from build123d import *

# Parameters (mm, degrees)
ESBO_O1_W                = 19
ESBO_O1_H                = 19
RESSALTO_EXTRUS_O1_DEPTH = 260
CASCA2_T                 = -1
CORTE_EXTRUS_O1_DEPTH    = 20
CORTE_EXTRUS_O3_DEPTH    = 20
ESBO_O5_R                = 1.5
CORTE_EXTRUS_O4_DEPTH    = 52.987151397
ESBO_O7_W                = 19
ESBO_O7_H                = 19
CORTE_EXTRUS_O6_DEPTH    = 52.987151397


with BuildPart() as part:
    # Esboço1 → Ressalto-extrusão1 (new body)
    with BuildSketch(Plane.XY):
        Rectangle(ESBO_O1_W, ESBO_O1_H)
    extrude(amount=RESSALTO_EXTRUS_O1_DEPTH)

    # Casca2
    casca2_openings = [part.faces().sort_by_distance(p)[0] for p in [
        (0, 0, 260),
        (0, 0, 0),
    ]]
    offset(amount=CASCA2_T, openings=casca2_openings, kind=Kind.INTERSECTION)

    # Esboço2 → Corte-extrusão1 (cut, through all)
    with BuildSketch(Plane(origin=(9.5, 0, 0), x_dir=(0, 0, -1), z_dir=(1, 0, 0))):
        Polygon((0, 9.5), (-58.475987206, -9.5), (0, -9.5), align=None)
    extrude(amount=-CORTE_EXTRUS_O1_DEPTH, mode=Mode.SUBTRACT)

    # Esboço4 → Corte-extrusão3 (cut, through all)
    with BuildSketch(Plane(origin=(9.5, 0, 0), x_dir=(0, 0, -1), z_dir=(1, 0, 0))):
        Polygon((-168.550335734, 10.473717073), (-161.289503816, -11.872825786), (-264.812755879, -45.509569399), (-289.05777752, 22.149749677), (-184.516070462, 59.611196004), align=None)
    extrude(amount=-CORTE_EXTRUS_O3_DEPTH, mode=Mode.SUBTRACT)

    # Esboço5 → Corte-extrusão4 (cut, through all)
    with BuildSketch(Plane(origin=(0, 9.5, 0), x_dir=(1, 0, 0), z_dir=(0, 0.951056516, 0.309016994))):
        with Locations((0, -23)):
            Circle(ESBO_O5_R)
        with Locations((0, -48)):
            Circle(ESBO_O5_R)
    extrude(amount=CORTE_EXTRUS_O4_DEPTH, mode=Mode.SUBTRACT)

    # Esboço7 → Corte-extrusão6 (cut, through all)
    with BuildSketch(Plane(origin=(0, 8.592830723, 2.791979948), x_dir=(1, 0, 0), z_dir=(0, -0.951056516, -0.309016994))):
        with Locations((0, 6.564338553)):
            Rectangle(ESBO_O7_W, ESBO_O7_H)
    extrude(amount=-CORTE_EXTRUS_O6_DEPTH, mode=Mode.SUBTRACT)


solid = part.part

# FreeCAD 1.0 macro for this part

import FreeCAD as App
import Part
import Sketcher

V = App.Vector
Q = App.Units.Quantity


def faces_at(feature, points):
    """Names of the faces that lie closest to the given points."""
    faces = feature.Shape.Faces
    near = lambda p: min(range(len(faces)), key=lambda i: faces[i].distToShape(Part.Vertex(*p))[0])
    return sorted({f"Face{near(p) + 1}" for p in points})

doc = App.newDocument("Part")
body = doc.addObject("PartDesign::Body", "Body")

sketch1 = doc.addObject("Sketcher::SketchObject", "Sketch")
body.addObject(sketch1)
sketch1.AttachmentSupport = (doc.XY_Plane, [""])
sketch1.MapMode = "FlatFace"
sketch1.addGeometry([
    Part.LineSegment(V(-9.5, 9.5, 0), V(-9.5, -9.5, 0)),
    Part.LineSegment(V(-9.5, -9.5, 0), V(9.5, -9.5, 0)),
    Part.LineSegment(V(9.5, -9.5, 0), V(9.5, 9.5, 0)),
    Part.LineSegment(V(9.5, 9.5, 0), V(-9.5, 9.5, 0)),
], False)
sketch1.addConstraint([
    Sketcher.Constraint("Coincident", 0, 2, 1, 1),
    Sketcher.Constraint("Coincident", 1, 2, 2, 1),
    Sketcher.Constraint("Coincident", 2, 2, 3, 1),
    Sketcher.Constraint("Coincident", 3, 2, 0, 1),
    Sketcher.Constraint("Vertical", 0),
    Sketcher.Constraint("Horizontal", 1),
    Sketcher.Constraint("Vertical", 2),
    Sketcher.Constraint("Horizontal", 3),
    Sketcher.Constraint("Symmetric", 0, 2, 2, 2, -1, 1),
    Sketcher.Constraint("Equal", 3, 0),
    Sketcher.Constraint("DistanceX", 1, 1, 1, 2, 19.0),
])
pad1 = doc.addObject("PartDesign::Pad", "Pad")
body.addObject(pad1)
pad1.Profile = sketch1
pad1.Length = 260
doc.recompute()

thickness = doc.addObject("PartDesign::Thickness", "Thickness")
body.addObject(thickness)
thickness.Base = (pad1, faces_at(pad1, [(0, 0, 260), (0, 0, 0)]))
thickness.Value = 1
thickness.Reversed = True
thickness.Join = "Intersection"

sketch2 = doc.addObject("Sketcher::SketchObject", "Sketch001")
body.addObject(sketch2)
sketch2.AttachmentSupport = (doc.YZ_Plane, [""])
sketch2.MapMode = "FlatFace"
sketch2.AttachmentOffset = App.Placement(V(0, 0, 9.5), App.Rotation())
sketch2.addGeometry([
    Part.LineSegment(V(9.5, 0, 0), V(-9.5, 58.475987, 0)),
    Part.LineSegment(V(-9.5, 58.475987, 0), V(-9.5, 0, 0)),
    Part.LineSegment(V(-9.5, 0, 0), V(9.5, 0, 0)),
], False)
sketch2.addConstraint([
    Sketcher.Constraint("Coincident", 0, 2, 1, 1),
    Sketcher.Constraint("Coincident", 1, 2, 2, 1),
    Sketcher.Constraint("Coincident", 2, 2, 0, 1),
    Sketcher.Constraint("Vertical", 1),
    Sketcher.Constraint("Horizontal", 2),
    Sketcher.Constraint("Symmetric", 1, 2, 2, 2, -1, 1),
    Sketcher.Constraint("DistanceX", 2, 1, 2, 2, 19.0),
    Sketcher.Constraint("Angle", 0, Q("108 deg")),
])
pocket1 = doc.addObject("PartDesign::Pocket", "Pocket")
body.addObject(pocket1)
pocket1.Profile = sketch2
pocket1.Type = "ThroughAll"

sketch3 = doc.addObject("Sketcher::SketchObject", "Sketch002")
body.addObject(sketch3)
sketch3.AttachmentSupport = (doc.YZ_Plane, [""])
sketch3.MapMode = "FlatFace"
sketch3.AttachmentOffset = App.Placement(V(0, 0, 9.5), App.Rotation())
sketch3.addGeometry([
    Part.LineSegment(V(-11.872826, 161.289504, 0), V(10.473717, 168.550336, 0)),
    Part.LineSegment(V(10.473717, 168.550336, 0), V(59.611196, 184.51607, 0)),
    Part.LineSegment(V(59.611196, 184.51607, 0), V(22.14975, 289.057778, 0)),
    Part.LineSegment(V(22.14975, 289.057778, 0), V(-45.509569, 264.812756, 0)),
    Part.LineSegment(V(-45.509569, 264.812756, 0), V(-11.872826, 161.289504, 0)),
], False)
sketch3.addConstraint([
    Sketcher.Constraint("Coincident", 0, 2, 1, 1),
    Sketcher.Constraint("Coincident", 1, 2, 2, 1),
    Sketcher.Constraint("Coincident", 2, 2, 3, 1),
    Sketcher.Constraint("Coincident", 3, 2, 4, 1),
    Sketcher.Constraint("Coincident", 4, 2, 0, 1),
    Sketcher.Constraint("Parallel", 0, 1),
    Sketcher.Constraint("Perpendicular", 2, 3),
    Sketcher.Constraint("Perpendicular", 1, 4),
    Sketcher.Constraint("Angle", 0, Q("18 deg")),
    Sketcher.Constraint("Distance", 3, 71.87214),
    Sketcher.Constraint("Distance", 4, 108.850789),
    Sketcher.Constraint("DistanceY", -1, 1, 1, 2, 184.51607),
    Sketcher.Constraint("DistanceX", -1, 1, 2, 2, 22.14975),
    Sketcher.Constraint("DistanceX", 3, 2, -1, 1, 45.509569),
    Sketcher.Constraint("DistanceX", 0, 2, 1, 2, 49.137479),
])
pocket2 = doc.addObject("PartDesign::Pocket", "Pocket001")
body.addObject(pocket2)
pocket2.Profile = sketch3
pocket2.Type = "ThroughAll"

sketch4 = doc.addObject("Sketcher::SketchObject", "Sketch003")
body.addObject(sketch4)
sketch4.Placement = App.Placement(V(0, 9.5, 0), App.Rotation(V(1, 0, 0), V(0, 0.309016994, -0.951056516), V(0, 0.951056516, 0.309016994), "ZXY"))
sketch4.addGeometry([
    Part.Circle(V(0, -23, 0), V(0, 0, 1), 1.5),
    Part.Circle(V(0, -48, 0), V(0, 0, 1), 1.5),
], False)
sketch4.addConstraint([
    Sketcher.Constraint("Equal", 0, 1),
    Sketcher.Constraint("PointOnObject", 0, 3, -2),
    Sketcher.Constraint("PointOnObject", 1, 3, -2),
    Sketcher.Constraint("Diameter", 0, 3.0),
    Sketcher.Constraint("DistanceY", 0, 3, -1, 1, 23.0),
    Sketcher.Constraint("DistanceY", 1, 3, -1, 1, 48.0),
])
pocket3 = doc.addObject("PartDesign::Pocket", "Pocket002")
body.addObject(pocket3)
pocket3.Profile = sketch4
pocket3.Type = "ThroughAll"
pocket3.Reversed = True

sketch5 = doc.addObject("Sketcher::SketchObject", "Sketch004")
body.addObject(sketch5)
sketch5.Placement = App.Placement(V(0, 8.592831, 2.79198), App.Rotation(V(1, 0, 0), V(0, -0.309016994, 0.951056516), V(0, -0.951056516, -0.309016994), "ZXY"))
sketch5.addGeometry([
    Part.LineSegment(V(-9.5, 16.064339, 0), V(-9.5, -2.935661, 0)),
    Part.LineSegment(V(-9.5, -2.935661, 0), V(9.5, -2.935661, 0)),
    Part.LineSegment(V(9.5, -2.935661, 0), V(9.5, 16.064339, 0)),
    Part.LineSegment(V(9.5, 16.064339, 0), V(-9.5, 16.064339, 0)),
], False)
sketch5.addConstraint([
    Sketcher.Constraint("Coincident", 0, 2, 1, 1),
    Sketcher.Constraint("Coincident", 1, 2, 2, 1),
    Sketcher.Constraint("Coincident", 2, 2, 3, 1),
    Sketcher.Constraint("Coincident", 3, 2, 0, 1),
    Sketcher.Constraint("Vertical", 0),
    Sketcher.Constraint("Horizontal", 1),
    Sketcher.Constraint("Vertical", 2),
    Sketcher.Constraint("Horizontal", 3),
    Sketcher.Constraint("Equal", 3, 0),
    Sketcher.Constraint("DistanceX", 1, 1, 1, 2, 19.0),
    Sketcher.Constraint("DistanceX", 0, 2, -1, 1, 9.5),
    Sketcher.Constraint("DistanceY", 0, 2, -1, 1, 2.935661),
])
pocket4 = doc.addObject("PartDesign::Pocket", "Pocket003")
body.addObject(pocket4)
pocket4.Profile = sketch5
pocket4.Type = "ThroughAll"

doc.recompute()
